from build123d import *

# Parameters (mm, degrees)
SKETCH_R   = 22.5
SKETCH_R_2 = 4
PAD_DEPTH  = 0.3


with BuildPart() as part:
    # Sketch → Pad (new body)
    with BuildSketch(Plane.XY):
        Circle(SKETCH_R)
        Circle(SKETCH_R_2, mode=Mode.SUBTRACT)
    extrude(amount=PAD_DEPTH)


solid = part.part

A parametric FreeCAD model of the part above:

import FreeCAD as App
import Part
import Sketcher

V = App.Vector
Q = App.Units.Quantity

doc = App.newDocument("Part")
params = doc.addObject("Spreadsheet::Sheet", "Params")
for row, (alias, value) in enumerate([
    ("sketch1_diameter", "45 mm"),
    ("sketch1_diameter2", "8 mm"),
    ("pad1_length", "0.3 mm"),
], start=1):
    params.set(f"A{row}", alias)
    params.set(f"B{row}", "=" + value)
    params.setAlias(f"B{row}", alias)

body = doc.addObject("PartDesign::Body", "Body")

# Sketch on XY plane
sketch1 = body.newObject("Sketcher::SketchObject", "Sketch")
sketch1.AttachmentSupport = (doc.getObject("XY_Plane"), [""])
sketch1.MapMode = "FlatFace"
sketch1.addGeometry([
    Part.Circle(V(0, 0, 0), V(0, 0, 1), 22.5),
    Part.Circle(V(0, 0, 0), V(0, 0, 1), 4),
], False)
sketch1.addConstraint([
    Sketcher.Constraint("Coincident", 0, 3, -1, 1),
    Sketcher.Constraint("Coincident", 1, 3, -1, 1),
    Sketcher.Constraint("Diameter", 0, Q("45 mm")),
    Sketcher.Constraint("Diameter", 1, Q("8 mm")),
])
sketch1.setExpression("Constraints[2]", "Params.sketch1_diameter")
sketch1.setExpression("Constraints[3]", "Params.sketch1_diameter2")
pad1 = body.newObject("PartDesign::Pad", "Pad")
pad1.Profile = sketch1
pad1.setExpression("Length", "Params.pad1_length")

doc.recompute()
